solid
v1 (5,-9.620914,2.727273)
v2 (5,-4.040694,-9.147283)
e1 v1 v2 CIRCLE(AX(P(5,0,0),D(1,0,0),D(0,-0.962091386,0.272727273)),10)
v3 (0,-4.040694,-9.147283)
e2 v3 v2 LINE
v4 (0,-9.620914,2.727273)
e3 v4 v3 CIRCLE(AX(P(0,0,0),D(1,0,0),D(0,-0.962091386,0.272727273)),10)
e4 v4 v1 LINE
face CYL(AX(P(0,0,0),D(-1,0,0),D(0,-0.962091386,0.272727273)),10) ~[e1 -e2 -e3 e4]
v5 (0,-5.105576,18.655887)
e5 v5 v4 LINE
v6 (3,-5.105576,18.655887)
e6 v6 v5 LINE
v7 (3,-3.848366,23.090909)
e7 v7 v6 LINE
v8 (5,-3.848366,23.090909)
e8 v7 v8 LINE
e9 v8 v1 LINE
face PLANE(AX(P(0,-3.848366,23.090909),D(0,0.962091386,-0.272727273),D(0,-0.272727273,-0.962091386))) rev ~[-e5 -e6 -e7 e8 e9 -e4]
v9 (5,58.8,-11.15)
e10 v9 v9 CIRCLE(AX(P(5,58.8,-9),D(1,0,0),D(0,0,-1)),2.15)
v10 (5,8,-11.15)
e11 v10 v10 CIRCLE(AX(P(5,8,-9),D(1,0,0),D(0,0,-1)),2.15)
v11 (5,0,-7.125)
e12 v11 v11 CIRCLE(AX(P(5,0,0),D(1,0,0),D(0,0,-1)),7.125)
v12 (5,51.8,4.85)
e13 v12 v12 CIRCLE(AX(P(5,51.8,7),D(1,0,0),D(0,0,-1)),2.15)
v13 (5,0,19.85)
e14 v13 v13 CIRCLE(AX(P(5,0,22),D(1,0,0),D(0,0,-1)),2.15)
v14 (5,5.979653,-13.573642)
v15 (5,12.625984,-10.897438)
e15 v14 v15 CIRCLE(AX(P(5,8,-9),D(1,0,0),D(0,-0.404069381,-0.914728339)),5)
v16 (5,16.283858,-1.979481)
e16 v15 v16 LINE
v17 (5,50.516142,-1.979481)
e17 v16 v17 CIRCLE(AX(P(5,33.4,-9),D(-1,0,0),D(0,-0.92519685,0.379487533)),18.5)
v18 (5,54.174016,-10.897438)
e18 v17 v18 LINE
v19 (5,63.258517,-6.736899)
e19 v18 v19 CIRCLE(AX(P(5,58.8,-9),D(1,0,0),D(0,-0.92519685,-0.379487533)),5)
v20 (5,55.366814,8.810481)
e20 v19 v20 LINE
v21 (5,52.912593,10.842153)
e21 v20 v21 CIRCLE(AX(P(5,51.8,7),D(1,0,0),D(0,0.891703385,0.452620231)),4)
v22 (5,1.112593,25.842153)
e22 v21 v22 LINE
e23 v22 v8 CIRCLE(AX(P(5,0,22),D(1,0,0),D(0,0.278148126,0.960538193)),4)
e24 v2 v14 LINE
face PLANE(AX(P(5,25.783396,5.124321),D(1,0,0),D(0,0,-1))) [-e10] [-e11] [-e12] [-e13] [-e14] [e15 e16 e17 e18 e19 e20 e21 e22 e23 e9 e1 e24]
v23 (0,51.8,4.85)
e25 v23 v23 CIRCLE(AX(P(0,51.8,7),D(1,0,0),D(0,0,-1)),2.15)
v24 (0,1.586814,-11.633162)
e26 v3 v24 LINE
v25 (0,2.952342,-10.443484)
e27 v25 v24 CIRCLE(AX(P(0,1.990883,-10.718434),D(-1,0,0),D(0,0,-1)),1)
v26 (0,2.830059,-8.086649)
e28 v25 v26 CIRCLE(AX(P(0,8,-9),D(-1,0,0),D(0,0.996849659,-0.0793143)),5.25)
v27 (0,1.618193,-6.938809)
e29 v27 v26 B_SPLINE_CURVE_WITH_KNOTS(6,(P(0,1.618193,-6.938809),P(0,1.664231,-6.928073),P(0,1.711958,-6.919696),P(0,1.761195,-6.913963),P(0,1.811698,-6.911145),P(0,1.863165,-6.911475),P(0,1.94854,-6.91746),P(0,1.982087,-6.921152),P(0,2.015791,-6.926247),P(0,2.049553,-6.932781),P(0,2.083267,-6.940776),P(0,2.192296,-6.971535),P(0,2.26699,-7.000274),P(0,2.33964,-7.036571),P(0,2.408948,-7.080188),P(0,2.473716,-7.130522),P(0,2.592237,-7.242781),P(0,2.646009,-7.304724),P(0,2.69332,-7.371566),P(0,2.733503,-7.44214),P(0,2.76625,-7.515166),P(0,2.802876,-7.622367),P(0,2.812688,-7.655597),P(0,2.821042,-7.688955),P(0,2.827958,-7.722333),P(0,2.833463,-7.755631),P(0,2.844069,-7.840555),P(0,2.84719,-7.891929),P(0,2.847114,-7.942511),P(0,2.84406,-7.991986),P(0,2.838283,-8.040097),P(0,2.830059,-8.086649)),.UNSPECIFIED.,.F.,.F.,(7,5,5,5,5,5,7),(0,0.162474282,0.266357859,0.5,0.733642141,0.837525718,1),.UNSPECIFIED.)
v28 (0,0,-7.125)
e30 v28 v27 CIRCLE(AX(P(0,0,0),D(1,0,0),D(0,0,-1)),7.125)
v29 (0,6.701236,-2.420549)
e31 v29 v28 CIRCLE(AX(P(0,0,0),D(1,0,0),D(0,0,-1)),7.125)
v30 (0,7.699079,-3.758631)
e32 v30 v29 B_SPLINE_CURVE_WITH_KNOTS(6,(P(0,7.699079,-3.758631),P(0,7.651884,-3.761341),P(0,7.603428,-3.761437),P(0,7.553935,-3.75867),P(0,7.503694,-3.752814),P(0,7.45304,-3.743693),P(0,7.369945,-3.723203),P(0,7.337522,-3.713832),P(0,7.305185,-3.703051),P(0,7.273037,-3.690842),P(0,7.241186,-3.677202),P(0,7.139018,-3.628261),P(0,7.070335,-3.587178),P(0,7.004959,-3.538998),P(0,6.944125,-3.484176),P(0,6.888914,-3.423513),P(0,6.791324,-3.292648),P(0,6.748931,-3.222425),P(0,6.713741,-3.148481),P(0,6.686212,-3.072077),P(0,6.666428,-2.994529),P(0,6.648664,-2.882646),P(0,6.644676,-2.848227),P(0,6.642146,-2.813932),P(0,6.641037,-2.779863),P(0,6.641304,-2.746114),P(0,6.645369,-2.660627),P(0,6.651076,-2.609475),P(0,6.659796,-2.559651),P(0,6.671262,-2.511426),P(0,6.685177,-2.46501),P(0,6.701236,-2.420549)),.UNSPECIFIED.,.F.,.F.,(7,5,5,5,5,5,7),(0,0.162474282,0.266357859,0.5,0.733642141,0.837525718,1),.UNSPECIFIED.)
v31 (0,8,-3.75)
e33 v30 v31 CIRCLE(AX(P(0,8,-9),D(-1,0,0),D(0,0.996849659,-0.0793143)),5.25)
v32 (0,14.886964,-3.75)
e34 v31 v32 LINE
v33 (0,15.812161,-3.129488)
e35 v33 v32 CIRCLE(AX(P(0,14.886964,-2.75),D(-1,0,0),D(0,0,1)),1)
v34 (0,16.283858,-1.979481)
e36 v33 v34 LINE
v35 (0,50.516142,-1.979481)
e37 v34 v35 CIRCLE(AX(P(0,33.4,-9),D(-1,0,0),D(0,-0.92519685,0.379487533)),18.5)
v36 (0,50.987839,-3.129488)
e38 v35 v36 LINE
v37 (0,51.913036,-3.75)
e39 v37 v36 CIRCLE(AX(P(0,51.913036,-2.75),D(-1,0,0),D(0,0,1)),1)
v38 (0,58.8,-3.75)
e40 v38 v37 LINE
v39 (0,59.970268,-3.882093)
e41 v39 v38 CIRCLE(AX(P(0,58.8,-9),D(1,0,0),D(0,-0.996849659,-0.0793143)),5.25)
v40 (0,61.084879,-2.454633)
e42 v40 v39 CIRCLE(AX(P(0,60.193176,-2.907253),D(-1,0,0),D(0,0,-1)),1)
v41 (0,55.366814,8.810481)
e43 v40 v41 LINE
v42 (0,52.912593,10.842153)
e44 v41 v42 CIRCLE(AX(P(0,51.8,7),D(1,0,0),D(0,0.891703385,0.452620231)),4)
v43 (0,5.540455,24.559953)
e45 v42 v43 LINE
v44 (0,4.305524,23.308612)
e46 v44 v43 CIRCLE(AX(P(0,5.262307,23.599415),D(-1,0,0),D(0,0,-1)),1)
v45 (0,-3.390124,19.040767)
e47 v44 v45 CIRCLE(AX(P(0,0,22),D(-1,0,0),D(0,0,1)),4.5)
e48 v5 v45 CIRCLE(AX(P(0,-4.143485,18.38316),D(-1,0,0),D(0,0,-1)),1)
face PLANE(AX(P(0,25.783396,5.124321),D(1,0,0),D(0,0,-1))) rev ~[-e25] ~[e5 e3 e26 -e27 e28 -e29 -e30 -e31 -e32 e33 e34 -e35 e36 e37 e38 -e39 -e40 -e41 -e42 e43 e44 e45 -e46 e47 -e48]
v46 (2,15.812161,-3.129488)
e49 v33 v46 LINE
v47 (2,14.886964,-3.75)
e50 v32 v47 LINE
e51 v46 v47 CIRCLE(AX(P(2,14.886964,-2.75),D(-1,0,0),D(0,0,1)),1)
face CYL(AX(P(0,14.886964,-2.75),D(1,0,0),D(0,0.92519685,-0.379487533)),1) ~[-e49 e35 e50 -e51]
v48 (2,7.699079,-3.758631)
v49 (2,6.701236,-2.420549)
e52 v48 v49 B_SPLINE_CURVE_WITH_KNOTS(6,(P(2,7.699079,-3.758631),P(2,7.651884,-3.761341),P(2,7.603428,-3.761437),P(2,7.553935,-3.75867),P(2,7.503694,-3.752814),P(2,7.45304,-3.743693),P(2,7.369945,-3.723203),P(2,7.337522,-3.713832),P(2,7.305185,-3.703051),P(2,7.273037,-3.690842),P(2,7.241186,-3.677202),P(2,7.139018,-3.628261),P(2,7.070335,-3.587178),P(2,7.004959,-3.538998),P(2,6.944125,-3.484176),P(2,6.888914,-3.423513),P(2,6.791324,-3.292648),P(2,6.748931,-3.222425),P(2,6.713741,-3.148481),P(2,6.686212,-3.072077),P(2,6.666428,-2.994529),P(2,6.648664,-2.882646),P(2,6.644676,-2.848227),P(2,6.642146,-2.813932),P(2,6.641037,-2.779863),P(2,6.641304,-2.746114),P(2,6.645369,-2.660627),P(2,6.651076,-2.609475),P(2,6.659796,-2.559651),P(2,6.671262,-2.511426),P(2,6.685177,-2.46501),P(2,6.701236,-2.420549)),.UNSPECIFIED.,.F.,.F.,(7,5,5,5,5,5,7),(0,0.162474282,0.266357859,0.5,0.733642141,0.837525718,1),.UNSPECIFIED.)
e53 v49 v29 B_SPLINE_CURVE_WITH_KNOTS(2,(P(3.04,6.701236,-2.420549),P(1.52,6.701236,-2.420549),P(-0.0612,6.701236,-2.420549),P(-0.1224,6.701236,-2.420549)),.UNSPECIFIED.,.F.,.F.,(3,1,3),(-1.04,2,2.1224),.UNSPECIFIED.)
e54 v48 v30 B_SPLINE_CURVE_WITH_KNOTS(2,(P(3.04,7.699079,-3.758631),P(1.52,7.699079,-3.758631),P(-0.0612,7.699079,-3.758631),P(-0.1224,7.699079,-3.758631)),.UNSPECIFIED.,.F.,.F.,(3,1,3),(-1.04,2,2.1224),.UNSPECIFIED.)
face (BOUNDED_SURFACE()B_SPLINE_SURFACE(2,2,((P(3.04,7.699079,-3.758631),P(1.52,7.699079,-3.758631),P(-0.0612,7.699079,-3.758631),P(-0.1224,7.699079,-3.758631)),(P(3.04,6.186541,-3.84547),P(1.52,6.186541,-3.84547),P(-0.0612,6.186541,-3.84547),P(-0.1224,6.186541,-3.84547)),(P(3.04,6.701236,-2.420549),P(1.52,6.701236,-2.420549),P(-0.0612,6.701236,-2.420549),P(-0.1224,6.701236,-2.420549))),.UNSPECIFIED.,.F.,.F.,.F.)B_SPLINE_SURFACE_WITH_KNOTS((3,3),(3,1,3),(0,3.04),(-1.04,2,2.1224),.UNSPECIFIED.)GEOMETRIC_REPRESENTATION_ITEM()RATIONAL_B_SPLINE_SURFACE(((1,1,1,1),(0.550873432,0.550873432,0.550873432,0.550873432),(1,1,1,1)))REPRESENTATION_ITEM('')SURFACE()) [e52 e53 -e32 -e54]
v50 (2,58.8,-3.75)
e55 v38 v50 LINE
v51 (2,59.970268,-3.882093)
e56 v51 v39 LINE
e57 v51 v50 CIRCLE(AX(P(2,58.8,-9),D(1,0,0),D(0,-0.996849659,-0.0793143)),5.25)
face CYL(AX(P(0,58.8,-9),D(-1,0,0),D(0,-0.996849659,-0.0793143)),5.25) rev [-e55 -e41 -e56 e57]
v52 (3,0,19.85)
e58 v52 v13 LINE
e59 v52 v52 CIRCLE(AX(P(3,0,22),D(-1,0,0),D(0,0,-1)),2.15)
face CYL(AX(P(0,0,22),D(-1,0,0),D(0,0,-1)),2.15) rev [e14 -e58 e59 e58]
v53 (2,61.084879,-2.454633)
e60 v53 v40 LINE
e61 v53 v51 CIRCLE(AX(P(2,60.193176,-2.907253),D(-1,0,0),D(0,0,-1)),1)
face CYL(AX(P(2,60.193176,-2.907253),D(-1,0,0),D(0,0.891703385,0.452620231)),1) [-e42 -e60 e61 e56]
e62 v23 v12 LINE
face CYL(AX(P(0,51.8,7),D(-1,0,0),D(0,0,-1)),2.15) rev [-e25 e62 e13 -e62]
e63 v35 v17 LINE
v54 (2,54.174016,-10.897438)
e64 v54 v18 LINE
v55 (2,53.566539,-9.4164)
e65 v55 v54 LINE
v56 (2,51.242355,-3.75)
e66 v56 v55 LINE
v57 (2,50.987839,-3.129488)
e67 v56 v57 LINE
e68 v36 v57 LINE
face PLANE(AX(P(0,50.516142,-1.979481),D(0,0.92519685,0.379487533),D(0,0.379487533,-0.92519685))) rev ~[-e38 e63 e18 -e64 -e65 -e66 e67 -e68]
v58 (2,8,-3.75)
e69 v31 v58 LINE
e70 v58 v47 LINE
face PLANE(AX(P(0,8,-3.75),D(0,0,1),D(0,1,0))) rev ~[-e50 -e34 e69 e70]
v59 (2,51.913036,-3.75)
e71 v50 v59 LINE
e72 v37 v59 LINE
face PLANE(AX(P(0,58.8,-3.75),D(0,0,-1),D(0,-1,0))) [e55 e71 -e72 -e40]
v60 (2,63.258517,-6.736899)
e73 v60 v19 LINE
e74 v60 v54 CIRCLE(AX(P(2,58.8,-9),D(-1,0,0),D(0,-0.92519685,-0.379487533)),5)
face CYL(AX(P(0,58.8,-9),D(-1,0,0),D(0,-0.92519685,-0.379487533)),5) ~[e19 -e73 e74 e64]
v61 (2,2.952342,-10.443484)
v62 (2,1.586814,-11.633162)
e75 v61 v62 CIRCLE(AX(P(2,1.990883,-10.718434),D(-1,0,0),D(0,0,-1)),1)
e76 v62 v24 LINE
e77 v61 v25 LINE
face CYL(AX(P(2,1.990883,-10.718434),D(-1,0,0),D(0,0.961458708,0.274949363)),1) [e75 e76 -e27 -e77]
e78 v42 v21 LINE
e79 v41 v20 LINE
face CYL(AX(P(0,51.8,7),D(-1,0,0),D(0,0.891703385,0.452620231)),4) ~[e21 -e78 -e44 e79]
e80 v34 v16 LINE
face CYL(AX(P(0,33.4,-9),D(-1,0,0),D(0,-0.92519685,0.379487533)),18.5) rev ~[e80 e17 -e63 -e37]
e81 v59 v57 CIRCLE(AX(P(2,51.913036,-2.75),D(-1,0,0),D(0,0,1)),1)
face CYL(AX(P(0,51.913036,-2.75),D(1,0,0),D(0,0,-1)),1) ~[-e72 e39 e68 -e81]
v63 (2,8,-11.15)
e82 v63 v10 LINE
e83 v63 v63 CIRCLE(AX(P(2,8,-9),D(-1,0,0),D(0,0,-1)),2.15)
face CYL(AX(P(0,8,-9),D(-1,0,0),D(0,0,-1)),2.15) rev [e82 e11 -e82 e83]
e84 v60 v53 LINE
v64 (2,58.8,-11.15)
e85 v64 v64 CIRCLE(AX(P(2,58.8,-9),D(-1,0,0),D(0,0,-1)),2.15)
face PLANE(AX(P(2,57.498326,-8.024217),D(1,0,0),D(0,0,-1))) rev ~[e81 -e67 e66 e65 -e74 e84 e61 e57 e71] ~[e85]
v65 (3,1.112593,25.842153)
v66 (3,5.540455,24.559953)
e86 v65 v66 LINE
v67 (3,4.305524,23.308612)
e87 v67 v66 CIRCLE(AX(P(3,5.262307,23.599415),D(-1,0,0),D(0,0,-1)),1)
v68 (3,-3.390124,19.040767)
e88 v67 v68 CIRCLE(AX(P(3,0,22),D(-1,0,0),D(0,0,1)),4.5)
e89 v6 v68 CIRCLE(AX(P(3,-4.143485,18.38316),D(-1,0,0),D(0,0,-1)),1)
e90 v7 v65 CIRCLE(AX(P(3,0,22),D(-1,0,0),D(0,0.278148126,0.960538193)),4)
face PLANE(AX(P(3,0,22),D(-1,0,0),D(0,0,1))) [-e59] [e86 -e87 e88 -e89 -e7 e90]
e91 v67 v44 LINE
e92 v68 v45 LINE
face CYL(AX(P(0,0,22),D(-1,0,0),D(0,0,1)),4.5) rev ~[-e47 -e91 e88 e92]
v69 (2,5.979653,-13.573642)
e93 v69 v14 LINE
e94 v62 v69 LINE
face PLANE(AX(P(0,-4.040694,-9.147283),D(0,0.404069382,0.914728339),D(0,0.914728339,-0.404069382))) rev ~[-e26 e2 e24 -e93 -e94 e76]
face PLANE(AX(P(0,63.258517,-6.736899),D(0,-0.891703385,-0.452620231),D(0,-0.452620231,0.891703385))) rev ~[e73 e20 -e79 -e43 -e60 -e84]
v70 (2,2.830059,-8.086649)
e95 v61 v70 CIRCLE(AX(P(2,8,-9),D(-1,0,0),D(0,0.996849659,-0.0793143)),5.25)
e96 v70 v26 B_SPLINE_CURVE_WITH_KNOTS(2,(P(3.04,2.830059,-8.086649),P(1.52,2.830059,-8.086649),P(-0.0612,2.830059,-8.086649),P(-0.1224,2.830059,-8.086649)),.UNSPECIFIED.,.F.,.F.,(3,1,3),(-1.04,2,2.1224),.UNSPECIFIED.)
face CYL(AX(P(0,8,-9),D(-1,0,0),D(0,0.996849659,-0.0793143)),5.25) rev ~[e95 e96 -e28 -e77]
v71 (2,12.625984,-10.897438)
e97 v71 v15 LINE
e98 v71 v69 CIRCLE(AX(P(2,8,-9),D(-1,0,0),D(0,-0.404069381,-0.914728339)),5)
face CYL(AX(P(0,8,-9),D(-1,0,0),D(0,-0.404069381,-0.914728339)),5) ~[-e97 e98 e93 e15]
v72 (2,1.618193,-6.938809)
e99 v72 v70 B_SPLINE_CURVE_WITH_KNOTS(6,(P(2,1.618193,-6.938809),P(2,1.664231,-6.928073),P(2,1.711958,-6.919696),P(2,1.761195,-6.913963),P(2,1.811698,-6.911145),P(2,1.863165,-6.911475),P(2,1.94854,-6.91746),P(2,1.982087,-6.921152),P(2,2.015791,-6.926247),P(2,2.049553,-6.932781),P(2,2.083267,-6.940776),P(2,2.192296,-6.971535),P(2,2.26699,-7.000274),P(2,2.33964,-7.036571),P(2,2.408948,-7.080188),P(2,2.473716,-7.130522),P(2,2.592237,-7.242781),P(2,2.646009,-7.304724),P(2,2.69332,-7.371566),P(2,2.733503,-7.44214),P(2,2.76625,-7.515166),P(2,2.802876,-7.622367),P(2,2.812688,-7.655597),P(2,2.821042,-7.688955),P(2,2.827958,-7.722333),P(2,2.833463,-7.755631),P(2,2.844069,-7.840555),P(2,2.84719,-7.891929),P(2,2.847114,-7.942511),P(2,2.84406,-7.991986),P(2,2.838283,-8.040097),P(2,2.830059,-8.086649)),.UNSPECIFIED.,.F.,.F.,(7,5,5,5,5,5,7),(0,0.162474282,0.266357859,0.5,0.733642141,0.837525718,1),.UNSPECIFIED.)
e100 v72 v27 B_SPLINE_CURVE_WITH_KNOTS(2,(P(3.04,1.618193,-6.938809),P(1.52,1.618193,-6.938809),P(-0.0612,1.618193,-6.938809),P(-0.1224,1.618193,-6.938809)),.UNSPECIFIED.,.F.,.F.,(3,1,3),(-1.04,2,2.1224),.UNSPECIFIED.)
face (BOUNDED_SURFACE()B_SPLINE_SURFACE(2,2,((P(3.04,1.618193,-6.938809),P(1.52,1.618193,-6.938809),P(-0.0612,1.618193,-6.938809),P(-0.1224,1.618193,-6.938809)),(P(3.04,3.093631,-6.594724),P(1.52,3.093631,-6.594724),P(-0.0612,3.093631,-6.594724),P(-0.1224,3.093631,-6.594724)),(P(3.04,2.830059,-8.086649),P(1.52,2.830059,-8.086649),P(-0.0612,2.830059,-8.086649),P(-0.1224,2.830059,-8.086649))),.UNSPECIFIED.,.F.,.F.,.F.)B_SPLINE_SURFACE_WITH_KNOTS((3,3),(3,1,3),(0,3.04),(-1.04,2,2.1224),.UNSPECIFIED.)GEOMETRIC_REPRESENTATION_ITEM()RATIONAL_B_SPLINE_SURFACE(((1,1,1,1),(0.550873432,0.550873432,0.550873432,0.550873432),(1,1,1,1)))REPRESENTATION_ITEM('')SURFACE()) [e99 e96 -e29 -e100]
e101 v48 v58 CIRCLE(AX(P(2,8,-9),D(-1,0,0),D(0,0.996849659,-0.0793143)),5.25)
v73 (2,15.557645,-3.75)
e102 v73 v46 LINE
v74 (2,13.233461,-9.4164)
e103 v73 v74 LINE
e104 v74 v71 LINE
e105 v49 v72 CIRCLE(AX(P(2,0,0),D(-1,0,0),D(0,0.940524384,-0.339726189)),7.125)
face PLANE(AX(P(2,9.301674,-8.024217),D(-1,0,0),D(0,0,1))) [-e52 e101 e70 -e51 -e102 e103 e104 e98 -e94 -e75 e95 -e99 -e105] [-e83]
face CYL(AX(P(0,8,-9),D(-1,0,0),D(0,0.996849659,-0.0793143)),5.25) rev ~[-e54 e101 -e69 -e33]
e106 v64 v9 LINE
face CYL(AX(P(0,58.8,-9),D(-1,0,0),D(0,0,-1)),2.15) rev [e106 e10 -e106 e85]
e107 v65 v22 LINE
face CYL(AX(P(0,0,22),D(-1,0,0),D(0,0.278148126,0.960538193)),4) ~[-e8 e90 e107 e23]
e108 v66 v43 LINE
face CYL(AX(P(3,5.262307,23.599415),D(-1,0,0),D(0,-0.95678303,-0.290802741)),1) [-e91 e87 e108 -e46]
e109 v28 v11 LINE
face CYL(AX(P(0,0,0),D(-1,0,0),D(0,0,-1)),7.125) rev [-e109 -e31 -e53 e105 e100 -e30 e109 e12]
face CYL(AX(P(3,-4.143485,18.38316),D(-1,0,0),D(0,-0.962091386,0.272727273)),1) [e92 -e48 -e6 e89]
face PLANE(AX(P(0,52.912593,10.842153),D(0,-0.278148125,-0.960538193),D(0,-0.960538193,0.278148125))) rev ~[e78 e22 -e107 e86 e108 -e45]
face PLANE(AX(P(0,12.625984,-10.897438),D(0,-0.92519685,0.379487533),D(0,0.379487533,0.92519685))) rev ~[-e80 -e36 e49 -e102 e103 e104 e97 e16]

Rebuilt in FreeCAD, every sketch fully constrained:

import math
import FreeCAD as App
import Part
import Sketcher

V = App.Vector
Q = App.Units.Quantity


def edges_at(feature, points):
    """Names of the edges that pass closest to the given points."""
    edges = feature.Shape.Edges
    near = lambda p: min(range(len(edges)), key=lambda i: edges[i].distToShape(Part.Vertex(*p))[0])
    return sorted({f"Edge{near(p) + 1}" for p in points})

doc = App.newDocument("Part")
body = doc.addObject("PartDesign::Body", "Body")

sketch1 = doc.addObject("Sketcher::SketchObject", "Sketch")
body.addObject(sketch1)
sketch1.AttachmentSupport = (doc.YZ_Plane, [""])
sketch1.MapMode = "FlatFace"
sketch1.addGeometry([
    Part.LineSegment(V(-3.848366, 23.090909, 0), V(-9.620914, 2.727273, 0)),
    Part.ArcOfCircle(Part.Circle(V(0, 0, 0), V(0, 0, 1), 10), math.radians(164.17338), math.radians(246.167177)),
    Part.LineSegment(V(-4.040694, -9.147283, 0), V(5.979653, -13.573642, 0)),
    Part.ArcOfCircle(Part.Circle(V(8, -9, 0), V(0, 0, 1), 5), math.radians(-113.832823), math.radians(-22.301943)),
    Part.LineSegment(V(12.625984, -10.897438, 0), V(16.283858, -1.979481, 0)),
    Part.ArcOfCircle(Part.Circle(V(33.4, -9, 0), V(0, 0, 1), 18.5), math.radians(22.301943), math.radians(157.698057)),
    Part.LineSegment(V(50.516142, -1.979481, 0), V(54.174016, -10.897438, 0)),
    Part.ArcOfCircle(Part.Circle(V(58.8, -9, 0), V(0, 0, 1), 5), math.radians(-157.698057), math.radians(26.91192)),
    Part.LineSegment(V(63.258517, -6.736899, 0), V(55.366814, 8.810481, 0)),
    Part.ArcOfCircle(Part.Circle(V(51.8, 7, 0), V(0, 0, 1), 4), math.radians(26.91192), math.radians(73.85029)),
    Part.LineSegment(V(52.912593, 10.842153, 0), V(1.112593, 25.842153, 0)),
    Part.ArcOfCircle(Part.Circle(V(0, 22, 0), V(0, 0, 1), 4), math.radians(73.85029), math.radians(164.17338)),
    Part.Circle(V(0, 22, 0), V(0, 0, 1), 2.15),
    Part.Circle(V(0, 0, 0), V(0, 0, 1), 7.125),
    Part.Circle(V(8, -9, 0), V(0, 0, 1), 2.15),
    Part.Circle(V(51.8, 7, 0), V(0, 0, 1), 2.15),
    Part.Circle(V(58.8, -9, 0), V(0, 0, 1), 2.15),
], False)
sketch1.addConstraint([
    Sketcher.Constraint("Tangent", 0, 2, 1, 1),
    Sketcher.Constraint("Tangent", 1, 2, 2, 1),
    Sketcher.Constraint("Tangent", 2, 2, 3, 1),
    Sketcher.Constraint("Tangent", 3, 2, 4, 1),
    Sketcher.Constraint("Tangent", 4, 2, 5, 2),
    Sketcher.Constraint("Tangent", 5, 1, 6, 1),
    Sketcher.Constraint("Tangent", 6, 2, 7, 1),
    Sketcher.Constraint("Tangent", 7, 2, 8, 1),
    Sketcher.Constraint("Tangent", 8, 2, 9, 1),
    Sketcher.Constraint("Tangent", 9, 2, 10, 1),
    Sketcher.Constraint("Tangent", 10, 2, 11, 1),
    Sketcher.Constraint("Tangent", 11, 2, 0, 1),
    Sketcher.Constraint("Coincident", 1, 3, -1, 1),
    Sketcher.Constraint("Coincident", 13, 3, -1, 1),
    Sketcher.Constraint("Coincident", 12, 3, 11, 3),
    Sketcher.Constraint("Coincident", 14, 3, 3, 3),
    Sketcher.Constraint("Coincident", 15, 3, 9, 3),
    Sketcher.Constraint("Coincident", 16, 3, 7, 3),
    Sketcher.Constraint("Equal", 3, 7),
    Sketcher.Constraint("Equal", 9, 11),
    Sketcher.Constraint("Equal", 12, 14),
    Sketcher.Constraint("Equal", 14, 15),
    Sketcher.Constraint("Equal", 15, 16),
    Sketcher.Constraint("PointOnObject", 11, 3, -2),
    Sketcher.Constraint("Horizontal", 3, 3, 5, 3),
    Sketcher.Constraint("Horizontal", 5, 3, 7, 3),
    Sketcher.Constraint("Horizontal", 4, 2, 5, 1),
    Sketcher.Constraint("Radius", 1, Q("10 mm")),
    Sketcher.Constraint("Radius", 3, Q("5 mm")),
    Sketcher.Constraint("Radius", 9, Q("4 mm")),
    Sketcher.Constraint("Diameter", 12, Q("4.3 mm")),
    Sketcher.Constraint("Radius", 5, Q("18.5 mm")),
    Sketcher.Constraint("Diameter", 13, Q("14.25 mm")),
    Sketcher.Constraint("DistanceX", -1, 1, 3, 3, Q("8 mm")),
    Sketcher.Constraint("DistanceY", 3, 3, -1, 1, Q("9 mm")),
    Sketcher.Constraint("DistanceY", -1, 1, 9, 3, Q("7 mm")),
    Sketcher.Constraint("DistanceY", -1, 1, 11, 3, Q("22 mm")),
    Sketcher.Constraint("DistanceX", 9, 3, 7, 3, Q("7 mm")),
    Sketcher.Constraint("DistanceX", -1, 1, 5, 3, Q("33.4 mm")),
])
pad1 = doc.addObject("PartDesign::Pad", "Pad")
body.addObject(pad1)
pad1.Profile = sketch1
pad1.Length = 5

sketch2 = doc.addObject("Sketcher::SketchObject", "Sketch001")
body.addObject(sketch2)
sketch2.AttachmentSupport = (doc.YZ_Plane, [""])
sketch2.MapMode = "FlatFace"
sketch2.addGeometry(Part.Circle(V(0, 22, 0), V(0, 0, 1), 4.5), False)
sketch2.addConstraint([
    Sketcher.Constraint("PointOnObject", 0, 3, -2),
    Sketcher.Constraint("Diameter", 0, Q("9 mm")),
    Sketcher.Constraint("DistanceY", -1, 1, 0, 3, Q("22 mm")),
])
pocket1 = doc.addObject("PartDesign::Pocket", "Pocket")
body.addObject(pocket1)
pocket1.Profile = sketch2
pocket1.Length = 3
pocket1.Reversed = True
doc.recompute()

fillet = doc.addObject("PartDesign::Fillet", "Fillet")
body.addObject(fillet)
fillet.Base = (pocket1, edges_at(pocket1, [(1.5, 3.093, 25.269), (1.5, -4.411, 21.108)]))
fillet.Radius = 1

sketch3 = doc.addObject("Sketcher::SketchObject", "Sketch002")
body.addObject(sketch3)
sketch3.AttachmentSupport = (doc.YZ_Plane, [""])
sketch3.MapMode = "FlatFace"
sketch3.addGeometry([
    Part.LineSegment(V(51.242355, -3.75, 0), V(58.8, -3.75, 0)),
    Part.ArcOfCircle(Part.Circle(V(58.8, -9, 0), V(0, 0, 1), 5.25), math.radians(-175.450847), math.radians(90)),
    Part.LineSegment(V(53.566539, -9.4164, 0), V(51.242355, -3.75, 0)),
    Part.LineSegment(V(8, -3.75, 0), V(15.557645, -3.75, 0)),
    Part.LineSegment(V(15.557645, -3.75, 0), V(13.233461, -9.4164, 0)),
    Part.ArcOfCircle(Part.Circle(V(8, -9, 0), V(0, 0, 1), 5.25), math.radians(90), math.radians(355.450847)),
], False)
sketch3.addConstraint([
    Sketcher.Constraint("Tangent", 0, 2, 1, 2),
    Sketcher.Constraint("Coincident", 1, 1, 2, 1),
    Sketcher.Constraint("Coincident", 2, 2, 0, 1),
    Sketcher.Constraint("Coincident", 3, 2, 4, 1),
    Sketcher.Constraint("Coincident", 4, 2, 5, 2),
    Sketcher.Constraint("Tangent", 5, 1, 3, 1),
    Sketcher.Constraint("Horizontal", 0),
    Sketcher.Constraint("Horizontal", 3),
    Sketcher.Constraint("Equal", 1, 5),
    Sketcher.Constraint("Horizontal", 1, 3, 5, 3),
    Sketcher.Constraint("Horizontal", 1, 1, 4, 2),
    Sketcher.Constraint("Equal", 0, 3),
    Sketcher.Constraint("Radius", 1, Q("5.25 mm")),
    Sketcher.Constraint("DistanceY", 1, 3, -1, 1, Q("9 mm")),
    Sketcher.Constraint("DistanceX", -1, 1, 5, 3, Q("8 mm")),
    Sketcher.Constraint("DistanceX", -1, 1, 1, 3, Q("58.8 mm")),
    Sketcher.Constraint("DistanceY", 1, 1, -1, 1, Q("9.4164 mm")),
    Sketcher.Constraint("DistanceX", 0, 1, 0, 2, Q("7.557645 mm")),
])
pocket2 = doc.addObject("PartDesign::Pocket", "Pocket001")
body.addObject(pocket2)
pocket2.Profile = sketch3
pocket2.Length = 2
pocket2.Reversed = True
doc.recompute()

fillet2 = doc.addObject("PartDesign::Fillet", "Fillet001")
body.addObject(fillet2)
fillet2.Base = (pocket2, edges_at(pocket2, [
    (1, 5.693, -4.284),
    (1, 3.587, -6.156),
    (1, 62.534, -5.309),
    (1, 4.515, -12.927),
    (1, 15.558, -3.75),
    (1, 51.242, -3.75),
]))
fillet2.Radius = 1

doc.recompute()
